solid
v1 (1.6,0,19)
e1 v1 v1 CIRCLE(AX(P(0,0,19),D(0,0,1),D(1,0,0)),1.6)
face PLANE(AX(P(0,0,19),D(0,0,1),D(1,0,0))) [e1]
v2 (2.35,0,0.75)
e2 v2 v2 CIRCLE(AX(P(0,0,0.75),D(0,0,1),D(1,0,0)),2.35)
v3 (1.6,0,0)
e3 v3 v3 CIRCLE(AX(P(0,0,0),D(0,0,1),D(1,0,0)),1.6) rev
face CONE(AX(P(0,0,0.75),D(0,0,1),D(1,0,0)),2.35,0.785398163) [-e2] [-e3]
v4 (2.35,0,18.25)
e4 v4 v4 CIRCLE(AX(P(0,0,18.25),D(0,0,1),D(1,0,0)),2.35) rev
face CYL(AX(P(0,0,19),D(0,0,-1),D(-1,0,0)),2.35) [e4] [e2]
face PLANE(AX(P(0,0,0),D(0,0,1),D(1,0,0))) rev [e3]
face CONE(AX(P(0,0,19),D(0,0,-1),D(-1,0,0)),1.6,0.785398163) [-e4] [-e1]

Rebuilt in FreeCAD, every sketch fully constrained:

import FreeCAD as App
import Part
import Sketcher
from FreeCAD import Vector


def edges_at(feature, points):
    """Names of the edges that pass closest to the given points."""
    edges = feature.Shape.Edges
    near = lambda p: min(range(len(edges)), key=lambda i: edges[i].distToShape(Part.Vertex(*p))[0])
    return sorted({f"Edge{near(p) + 1}" for p in points})

doc = App.newDocument("Part")
body = doc.addObject("PartDesign::Body", "Body")

# Sketch on XY plane
sketch1 = body.newObject("Sketcher::SketchObject", "Sketch")
sketch1.AttachmentSupport = (doc.getObject("XY_Plane"), [""])
sketch1.MapMode = "FlatFace"
sketch1.addGeometry(Part.Circle(Vector(0, 0, 0), Vector(0, 0, 1), 2.4), False)
sketch1.addConstraint(Sketcher.Constraint("Coincident", 0, 3, -1, 1))
sketch1.addConstraint(Sketcher.Constraint("Diameter", 0, 4.7))
pad1 = body.newObject("PartDesign::Pad", "Pad")
pad1.Profile = sketch1
pad1.Length = 19
doc.recompute()

chamfer = body.newObject("PartDesign::Chamfer", "Chamfer")
chamfer.Base = (pad1, edges_at(pad1, [(-2.35, 0, 0), (-2.35, 0, 19)]))
chamfer.Size = 0.75

doc.recompute()
